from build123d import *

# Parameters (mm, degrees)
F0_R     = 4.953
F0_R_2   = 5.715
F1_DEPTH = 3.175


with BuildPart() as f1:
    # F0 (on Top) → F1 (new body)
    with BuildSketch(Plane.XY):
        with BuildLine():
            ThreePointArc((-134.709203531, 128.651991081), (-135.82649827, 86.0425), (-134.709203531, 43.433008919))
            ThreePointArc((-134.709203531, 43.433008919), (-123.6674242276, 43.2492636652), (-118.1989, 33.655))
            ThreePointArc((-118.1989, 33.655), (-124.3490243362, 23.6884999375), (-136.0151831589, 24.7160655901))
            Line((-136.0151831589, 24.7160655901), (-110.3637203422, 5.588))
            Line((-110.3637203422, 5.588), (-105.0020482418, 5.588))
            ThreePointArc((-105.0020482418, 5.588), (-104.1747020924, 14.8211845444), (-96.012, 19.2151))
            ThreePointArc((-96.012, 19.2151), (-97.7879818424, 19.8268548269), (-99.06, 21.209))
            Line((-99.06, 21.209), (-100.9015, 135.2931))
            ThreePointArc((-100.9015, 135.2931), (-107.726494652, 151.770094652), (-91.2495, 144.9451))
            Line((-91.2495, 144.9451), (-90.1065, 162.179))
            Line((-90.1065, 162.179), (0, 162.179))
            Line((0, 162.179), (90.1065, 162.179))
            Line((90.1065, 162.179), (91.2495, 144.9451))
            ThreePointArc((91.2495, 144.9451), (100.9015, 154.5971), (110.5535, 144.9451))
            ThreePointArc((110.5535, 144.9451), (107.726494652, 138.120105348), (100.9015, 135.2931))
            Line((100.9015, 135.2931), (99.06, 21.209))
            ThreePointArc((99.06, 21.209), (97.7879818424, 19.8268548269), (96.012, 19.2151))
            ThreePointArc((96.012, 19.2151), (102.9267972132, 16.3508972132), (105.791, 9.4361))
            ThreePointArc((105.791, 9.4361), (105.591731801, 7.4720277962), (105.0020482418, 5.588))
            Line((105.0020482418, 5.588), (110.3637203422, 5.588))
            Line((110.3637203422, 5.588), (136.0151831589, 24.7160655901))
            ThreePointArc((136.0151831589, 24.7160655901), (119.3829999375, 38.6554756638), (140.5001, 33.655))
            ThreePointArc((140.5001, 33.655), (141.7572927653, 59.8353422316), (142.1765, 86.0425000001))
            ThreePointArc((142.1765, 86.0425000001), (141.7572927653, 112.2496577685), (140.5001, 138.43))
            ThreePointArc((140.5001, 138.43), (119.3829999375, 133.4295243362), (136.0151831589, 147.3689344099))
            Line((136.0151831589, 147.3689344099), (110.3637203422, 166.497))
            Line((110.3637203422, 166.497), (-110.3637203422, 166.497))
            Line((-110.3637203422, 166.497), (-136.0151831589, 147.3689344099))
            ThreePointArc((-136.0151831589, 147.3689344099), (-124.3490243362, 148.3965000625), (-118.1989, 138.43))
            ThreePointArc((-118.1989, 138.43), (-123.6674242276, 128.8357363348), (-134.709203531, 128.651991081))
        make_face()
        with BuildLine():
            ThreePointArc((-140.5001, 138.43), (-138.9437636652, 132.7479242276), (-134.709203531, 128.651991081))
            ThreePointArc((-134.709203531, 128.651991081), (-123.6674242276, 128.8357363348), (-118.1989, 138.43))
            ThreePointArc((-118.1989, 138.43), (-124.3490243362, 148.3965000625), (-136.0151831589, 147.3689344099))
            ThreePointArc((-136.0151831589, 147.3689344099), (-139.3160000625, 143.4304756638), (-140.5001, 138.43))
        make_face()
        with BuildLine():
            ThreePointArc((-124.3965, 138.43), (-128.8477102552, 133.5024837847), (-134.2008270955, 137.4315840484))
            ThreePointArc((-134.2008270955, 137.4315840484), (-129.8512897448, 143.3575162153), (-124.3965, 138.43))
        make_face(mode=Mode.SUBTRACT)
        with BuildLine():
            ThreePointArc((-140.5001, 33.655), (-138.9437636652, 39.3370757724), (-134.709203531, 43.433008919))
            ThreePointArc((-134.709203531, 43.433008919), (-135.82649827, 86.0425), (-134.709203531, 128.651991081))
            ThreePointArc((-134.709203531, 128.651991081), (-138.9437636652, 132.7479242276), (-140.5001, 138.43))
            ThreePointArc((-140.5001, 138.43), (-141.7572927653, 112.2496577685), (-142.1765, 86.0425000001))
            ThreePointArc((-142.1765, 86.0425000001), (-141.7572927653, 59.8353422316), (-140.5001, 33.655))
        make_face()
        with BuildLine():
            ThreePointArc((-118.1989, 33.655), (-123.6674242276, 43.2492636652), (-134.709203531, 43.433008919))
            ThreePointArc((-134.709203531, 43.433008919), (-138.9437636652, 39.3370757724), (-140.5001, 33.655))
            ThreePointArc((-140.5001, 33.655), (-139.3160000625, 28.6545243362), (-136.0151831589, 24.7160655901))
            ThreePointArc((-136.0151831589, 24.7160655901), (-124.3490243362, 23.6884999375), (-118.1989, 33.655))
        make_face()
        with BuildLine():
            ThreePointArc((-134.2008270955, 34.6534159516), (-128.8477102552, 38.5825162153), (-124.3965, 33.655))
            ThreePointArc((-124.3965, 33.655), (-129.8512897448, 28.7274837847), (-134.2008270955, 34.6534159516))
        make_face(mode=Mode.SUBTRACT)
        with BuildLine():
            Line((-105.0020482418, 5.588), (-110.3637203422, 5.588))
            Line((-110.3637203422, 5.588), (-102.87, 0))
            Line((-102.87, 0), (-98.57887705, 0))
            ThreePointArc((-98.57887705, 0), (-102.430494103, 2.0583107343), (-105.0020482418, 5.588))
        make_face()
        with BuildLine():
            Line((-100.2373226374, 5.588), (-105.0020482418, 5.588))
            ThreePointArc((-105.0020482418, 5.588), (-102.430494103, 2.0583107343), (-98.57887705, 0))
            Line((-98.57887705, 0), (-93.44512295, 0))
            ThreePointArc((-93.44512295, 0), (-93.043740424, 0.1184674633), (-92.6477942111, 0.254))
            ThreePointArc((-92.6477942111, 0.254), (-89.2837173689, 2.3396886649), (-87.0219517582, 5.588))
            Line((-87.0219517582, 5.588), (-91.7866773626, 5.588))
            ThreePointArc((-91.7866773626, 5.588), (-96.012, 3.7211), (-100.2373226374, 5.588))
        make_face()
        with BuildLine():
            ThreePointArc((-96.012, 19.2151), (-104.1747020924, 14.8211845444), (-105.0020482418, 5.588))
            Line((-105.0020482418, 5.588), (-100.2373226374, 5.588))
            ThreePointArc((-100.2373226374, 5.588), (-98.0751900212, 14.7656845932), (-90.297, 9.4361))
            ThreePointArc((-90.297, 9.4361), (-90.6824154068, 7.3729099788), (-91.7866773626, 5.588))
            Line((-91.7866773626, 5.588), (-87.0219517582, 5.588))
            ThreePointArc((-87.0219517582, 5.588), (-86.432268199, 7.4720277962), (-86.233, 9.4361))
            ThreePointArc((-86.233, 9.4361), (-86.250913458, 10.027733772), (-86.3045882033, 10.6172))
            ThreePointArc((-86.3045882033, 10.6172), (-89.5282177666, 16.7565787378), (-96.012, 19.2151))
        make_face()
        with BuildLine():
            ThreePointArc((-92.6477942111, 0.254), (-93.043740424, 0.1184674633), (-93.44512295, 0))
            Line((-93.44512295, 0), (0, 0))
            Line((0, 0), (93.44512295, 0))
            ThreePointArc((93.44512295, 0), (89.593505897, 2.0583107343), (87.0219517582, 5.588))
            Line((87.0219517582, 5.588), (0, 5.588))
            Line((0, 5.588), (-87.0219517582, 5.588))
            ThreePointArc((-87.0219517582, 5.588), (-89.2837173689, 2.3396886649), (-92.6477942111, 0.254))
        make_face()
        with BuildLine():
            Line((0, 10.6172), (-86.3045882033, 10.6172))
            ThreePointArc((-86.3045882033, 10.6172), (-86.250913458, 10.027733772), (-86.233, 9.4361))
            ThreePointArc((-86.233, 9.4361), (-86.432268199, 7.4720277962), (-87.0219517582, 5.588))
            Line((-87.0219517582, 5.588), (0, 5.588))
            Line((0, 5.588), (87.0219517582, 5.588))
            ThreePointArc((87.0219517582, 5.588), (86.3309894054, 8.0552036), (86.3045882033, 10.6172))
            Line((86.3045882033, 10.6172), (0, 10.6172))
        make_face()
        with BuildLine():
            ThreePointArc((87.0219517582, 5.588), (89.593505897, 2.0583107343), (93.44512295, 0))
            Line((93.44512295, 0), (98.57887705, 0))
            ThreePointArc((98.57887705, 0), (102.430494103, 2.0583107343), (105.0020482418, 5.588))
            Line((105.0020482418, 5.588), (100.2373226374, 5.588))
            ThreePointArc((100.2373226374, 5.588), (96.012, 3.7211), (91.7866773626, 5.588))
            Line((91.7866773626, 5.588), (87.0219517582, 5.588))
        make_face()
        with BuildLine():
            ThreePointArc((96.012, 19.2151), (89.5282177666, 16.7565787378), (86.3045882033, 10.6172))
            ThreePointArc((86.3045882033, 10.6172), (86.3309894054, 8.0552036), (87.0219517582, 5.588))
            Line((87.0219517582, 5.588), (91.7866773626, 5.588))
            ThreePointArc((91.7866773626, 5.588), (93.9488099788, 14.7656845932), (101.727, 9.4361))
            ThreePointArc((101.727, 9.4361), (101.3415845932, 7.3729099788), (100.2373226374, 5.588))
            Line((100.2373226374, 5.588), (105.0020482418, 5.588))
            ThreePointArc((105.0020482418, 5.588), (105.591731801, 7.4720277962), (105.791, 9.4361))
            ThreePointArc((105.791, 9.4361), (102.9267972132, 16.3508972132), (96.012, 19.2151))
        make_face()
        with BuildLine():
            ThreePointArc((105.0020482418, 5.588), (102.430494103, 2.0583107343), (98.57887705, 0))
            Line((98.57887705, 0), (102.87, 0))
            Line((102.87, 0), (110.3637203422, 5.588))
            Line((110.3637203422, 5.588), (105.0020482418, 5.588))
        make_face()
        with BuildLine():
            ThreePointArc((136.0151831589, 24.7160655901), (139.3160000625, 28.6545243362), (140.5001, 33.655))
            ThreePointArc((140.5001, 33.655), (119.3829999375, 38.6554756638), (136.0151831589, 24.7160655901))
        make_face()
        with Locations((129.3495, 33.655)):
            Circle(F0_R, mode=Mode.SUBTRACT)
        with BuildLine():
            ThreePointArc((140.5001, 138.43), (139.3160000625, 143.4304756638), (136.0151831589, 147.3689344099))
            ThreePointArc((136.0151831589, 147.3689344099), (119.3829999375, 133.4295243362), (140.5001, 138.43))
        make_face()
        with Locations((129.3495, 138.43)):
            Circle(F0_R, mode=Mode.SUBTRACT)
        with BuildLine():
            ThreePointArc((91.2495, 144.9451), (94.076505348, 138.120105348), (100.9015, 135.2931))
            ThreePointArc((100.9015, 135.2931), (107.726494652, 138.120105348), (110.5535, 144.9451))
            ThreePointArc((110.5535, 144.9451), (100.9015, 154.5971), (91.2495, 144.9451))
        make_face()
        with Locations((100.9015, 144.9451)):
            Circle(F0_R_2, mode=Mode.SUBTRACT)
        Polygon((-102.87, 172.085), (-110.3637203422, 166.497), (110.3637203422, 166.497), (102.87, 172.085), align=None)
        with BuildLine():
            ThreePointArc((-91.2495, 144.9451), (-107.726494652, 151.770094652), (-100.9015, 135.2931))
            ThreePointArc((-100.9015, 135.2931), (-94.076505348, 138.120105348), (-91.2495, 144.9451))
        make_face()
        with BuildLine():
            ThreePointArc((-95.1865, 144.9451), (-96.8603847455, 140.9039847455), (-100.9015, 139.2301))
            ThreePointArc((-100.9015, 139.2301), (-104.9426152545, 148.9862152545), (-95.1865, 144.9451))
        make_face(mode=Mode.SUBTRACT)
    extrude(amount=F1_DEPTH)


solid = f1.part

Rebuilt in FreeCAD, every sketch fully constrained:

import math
import FreeCAD as App
import Part
import Sketcher
from FreeCAD import Vector
Q = App.Units.Quantity

doc = App.newDocument("Part")
params = doc.addObject("Spreadsheet::Sheet", "Params")
for row, (alias, value) in enumerate([
    ("sketch1_diameter", "0.39 in"),
    ("sketch1_diameter2", "0.45 in"),
    ("sketch1_radius", "0.38 in"),
    ("sketch1_width", "8.1 in"),
    ("sketch1_radius2", "0.439 in"),
    ("pad1_length", "0.125 in"),
], start=1):
    params.set(f"A{row}", alias)
    params.set(f"B{row}", "=" + value)
    params.setAlias(f"B{row}", alias)

body = doc.addObject("PartDesign::Body", "Body")

# Sketch on XY plane
sketch1 = body.newObject("Sketcher::SketchObject", "Sketch")
sketch1.AttachmentSupport = (doc.getObject("XY_Plane"), [""])
sketch1.MapMode = "FlatFace"
sketch1.addGeometry(Part.ArcOfCircle(Part.Circle(Vector(-677.216387, 86.0425, 0), Vector(0, 0, 1), 819.392888), math.radians(-3.665679), math.radians(3.665679)), False)
sketch1.addGeometry(Part.ArcOfCircle(Part.Circle(Vector(129.3495, 138.43, 0), Vector(0, 0, 1), 11.1506), math.radians(0), math.radians(53.288437)), False)
sketch1.addGeometry(Part.LineSegment(Vector(136.015183, 147.368934, 0), Vector(102.87, 172.085, 0)), False)
sketch1.addGeometry(Part.LineSegment(Vector(102.87, 172.085, 0), Vector(-102.87, 172.085, 0)), False)
sketch1.addGeometry(Part.LineSegment(Vector(-102.87, 172.085, 0), Vector(-136.015183, 147.368934, 0)), False)
sketch1.addGeometry(Part.ArcOfCircle(Part.Circle(Vector(-129.3495, 138.43, 0), Vector(0, 0, 1), 11.1506), math.radians(126.711563), math.radians(180)), False)
sketch1.addGeometry(Part.ArcOfCircle(Part.Circle(Vector(677.216387, 86.0425, 0), Vector(0, 0, 1), 819.392887), math.radians(176.334321), math.radians(183.665679)), False)
sketch1.addGeometry(Part.ArcOfCircle(Part.Circle(Vector(-129.3495, 33.655, 0), Vector(0, 0, 1), 11.1506), math.radians(180), math.radians(233.288437)), False)
sketch1.addGeometry(Part.LineSegment(Vector(-136.015183, 24.716066, 0), Vector(-102.87, 0, 0)), False)
sketch1.addGeometry(Part.LineSegment(Vector(-102.87, 0, 0), Vector(102.87, 0, 0)), False)
sketch1.addGeometry(Part.LineSegment(Vector(102.87, 0, 0), Vector(136.015183, 24.716066, 0)), False)
sketch1.addGeometry(Part.ArcOfCircle(Part.Circle(Vector(129.3495, 33.655, 0), Vector(0, 0, 1), 11.1506), math.radians(-53.288437), math.radians(0)), False)
sketch1.addGeometry(Part.ArcOfCircle(Part.Circle(Vector(-96.012, 9.4361, 0), Vector(0, 0, 1), 5.715), math.radians(-137.675143), math.radians(-42.324857)), False)
sketch1.addGeometry(Part.ArcOfCircle(Part.Circle(Vector(-96.012, 9.4361, 0), Vector(0, 0, 1), 5.715), math.radians(0), math.radians(222.324857)), False)
sketch1.addGeometry(Part.ArcOfCircle(Part.Circle(Vector(-96.012, 9.4361, 0), Vector(0, 0, 1), 5.715), math.radians(-42.324857), math.radians(0)), False)
sketch1.addGeometry(Part.ArcOfCircle(Part.Circle(Vector(-129.3495, 33.655, 0), Vector(0, 0, 1), 4.953), math.radians(168.370747), math.radians(360)), False)
sketch1.addGeometry(Part.ArcOfCircle(Part.Circle(Vector(-129.3495, 33.655, 0), Vector(0, 0, 1), 4.953), math.radians(0), math.radians(168.370747)), False)
sketch1.addGeometry(Part.ArcOfCircle(Part.Circle(Vector(96.012, 9.4361, 0), Vector(0, 0, 1), 5.715), math.radians(-137.675143), math.radians(-42.324857)), False)
sketch1.addGeometry(Part.ArcOfCircle(Part.Circle(Vector(96.012, 9.4361, 0), Vector(0, 0, 1), 5.715), math.radians(0), math.radians(222.324857)), False)
sketch1.addGeometry(Part.ArcOfCircle(Part.Circle(Vector(96.012, 9.4361, 0), Vector(0, 0, 1), 5.715), math.radians(-42.324857), math.radians(0)), False)
sketch1.addGeometry(Part.Circle(Vector(129.3495, 33.655, 0), Vector(0, 0, 1), 4.953), False)
sketch1.addGeometry(Part.ArcOfCircle(Part.Circle(Vector(95.689807, 23.034257, 0), Vector(0, 0, 1), 3.832723), math.radians(-85.177805), math.radians(-28.439447)), False)
sketch1.addGeometry(Part.ArcOfCircle(Part.Circle(Vector(96.012, 9.4361, 0), Vector(0, 0, 1), 9.779), math.radians(90), math.radians(173.062924)), False)
sketch1.addGeometry(Part.LineSegment(Vector(86.304588, 10.6172, 0), Vector(-86.304588, 10.6172, 0)), False)
sketch1.addGeometry(Part.ArcOfCircle(Part.Circle(Vector(-96.012, 9.4361, 0), Vector(0, 0, 1), 9.779), math.radians(6.937076), math.radians(90)), False)
sketch1.addGeometry(Part.ArcOfCircle(Part.Circle(Vector(-95.689807, 23.034257, 0), Vector(0, 0, 1), 3.832723), math.radians(-151.560553), math.radians(-94.822195)), False)
sketch1.addGeometry(Part.LineSegment(Vector(-99.06, 21.209, 0), Vector(-100.9015, 135.2931, 0)), False)
sketch1.addGeometry(Part.ArcOfCircle(Part.Circle(Vector(-100.9015, 144.9451, 0), Vector(0, 0, 1), 9.652), math.radians(-90), math.radians(0)), False)
sketch1.addGeometry(Part.LineSegment(Vector(-91.2495, 144.9451, 0), Vector(-90.1065, 162.179, 0)), False)
sketch1.addGeometry(Part.LineSegment(Vector(-90.1065, 162.179, 0), Vector(90.1065, 162.179, 0)), False)
sketch1.addGeometry(Part.LineSegment(Vector(90.1065, 162.179, 0), Vector(91.2495, 144.9451, 0)), False)
sketch1.addGeometry(Part.ArcOfCircle(Part.Circle(Vector(100.9015, 144.9451, 0), Vector(0, 0, 1), 9.652), math.radians(180), math.radians(270)), False)
sketch1.addGeometry(Part.LineSegment(Vector(100.9015, 135.2931, 0), Vector(99.06, 21.209, 0)), False)
sketch1.addGeometry(Part.ArcOfCircle(Part.Circle(Vector(-129.3495, 138.43, 0), Vector(0, 0, 1), 4.953), math.radians(0), math.radians(191.629253)), False)
sketch1.addGeometry(Part.ArcOfCircle(Part.Circle(Vector(-129.3495, 138.43, 0), Vector(0, 0, 1), 4.953), math.radians(-168.370747), math.radians(0)), False)
sketch1.addGeometry(Part.ArcOfCircle(Part.Circle(Vector(-100.9015, 144.9451, 0), Vector(0, 0, 1), 5.715), math.radians(0), math.radians(270)), False)
sketch1.addGeometry(Part.ArcOfCircle(Part.Circle(Vector(-100.9015, 144.9451, 0), Vector(0, 0, 1), 5.715), math.radians(-90), math.radians(0)), False)
sketch1.addGeometry(Part.Circle(Vector(129.3495, 138.43, 0), Vector(0, 0, 1), 4.953), False)
sketch1.addGeometry(Part.Circle(Vector(100.9015, 144.9451, 0), Vector(0, 0, 1), 5.715), False)
sketch1.addConstraint(Sketcher.Constraint("Coincident", 0, 2, 1, 1))
sketch1.addConstraint(Sketcher.Constraint("Tangent", 1, 2, 2, 1))
sketch1.addConstraint(Sketcher.Constraint("Coincident", 2, 2, 3, 1))
sketch1.addConstraint(Sketcher.Constraint("Coincident", 3, 2, 4, 1))
sketch1.addConstraint(Sketcher.Constraint("Tangent", 4, 2, 5, 1))
sketch1.addConstraint(Sketcher.Constraint("Coincident", 5, 2, 6, 1))
sketch1.addConstraint(Sketcher.Constraint("Coincident", 6, 2, 7, 1))
sketch1.addConstraint(Sketcher.Constraint("Tangent", 7, 2, 8, 1))
sketch1.addConstraint(Sketcher.Constraint("Coincident", 8, 2, 9, 1))
sketch1.addConstraint(Sketcher.Constraint("Coincident", 9, 2, 10, 1))
sketch1.addConstraint(Sketcher.Constraint("Tangent", 10, 2, 11, 1))
sketch1.addConstraint(Sketcher.Constraint("Coincident", 11, 2, 0, 1))
sketch1.addConstraint(Sketcher.Constraint("Tangent", 12, 1, 13, 2))
sketch1.addConstraint(Sketcher.Constraint("Tangent", 13, 1, 14, 2))
sketch1.addConstraint(Sketcher.Constraint("Tangent", 14, 1, 12, 2))
sketch1.addConstraint(Sketcher.Constraint("Tangent", 15, 1, 16, 2))
sketch1.addConstraint(Sketcher.Constraint("Coincident", 16, 1, 15, 2))
sketch1.addConstraint(Sketcher.Constraint("Tangent", 17, 1, 18, 2))
sketch1.addConstraint(Sketcher.Constraint("Tangent", 18, 1, 19, 2))
sketch1.addConstraint(Sketcher.Constraint("Tangent", 19, 1, 17, 2))
sketch1.addConstraint(Sketcher.Constraint("Coincident", 21, 1, 22, 1))
sketch1.addConstraint(Sketcher.Constraint("Coincident", 22, 2, 23, 1))
sketch1.addConstraint(Sketcher.Constraint("Coincident", 23, 2, 24, 1))
sketch1.addConstraint(Sketcher.Constraint("Coincident", 24, 2, 25, 2))
sketch1.addConstraint(Sketcher.Constraint("Coincident", 25, 1, 26, 1))
sketch1.addConstraint(Sketcher.Constraint("Coincident", 26, 2, 27, 1))
sketch1.addConstraint(Sketcher.Constraint("Coincident", 27, 2, 28, 1))
sketch1.addConstraint(Sketcher.Constraint("Coincident", 28, 2, 29, 1))
sketch1.addConstraint(Sketcher.Constraint("Coincident", 29, 2, 30, 1))
sketch1.addConstraint(Sketcher.Constraint("Coincident", 30, 2, 31, 1))
sketch1.addConstraint(Sketcher.Constraint("Coincident", 31, 2, 32, 1))
sketch1.addConstraint(Sketcher.Constraint("Coincident", 32, 2, 21, 2))
sketch1.addConstraint(Sketcher.Constraint("Tangent", 33, 1, 34, 2))
sketch1.addConstraint(Sketcher.Constraint("Coincident", 34, 1, 33, 2))
sketch1.addConstraint(Sketcher.Constraint("Tangent", 35, 1, 36, 2))
sketch1.addConstraint(Sketcher.Constraint("Coincident", 36, 1, 35, 2))
sketch1.addConstraint(Sketcher.Constraint("Horizontal", 3))
sketch1.addConstraint(Sketcher.Constraint("Horizontal", 9))
sketch1.addConstraint(Sketcher.Constraint("Horizontal", 23))
sketch1.addConstraint(Sketcher.Constraint("Horizontal", 29))
sketch1.addConstraint(Sketcher.Constraint("Coincident", 15, 3, 7, 3))
sketch1.addConstraint(Sketcher.Constraint("Coincident", 20, 3, 11, 3))
sketch1.addConstraint(Sketcher.Constraint("Coincident", 22, 3, 17, 3))
sketch1.addConstraint(Sketcher.Constraint("Coincident", 24, 3, 12, 3))
sketch1.addConstraint(Sketcher.Constraint("Coincident", 33, 3, 5, 3))
sketch1.addConstraint(Sketcher.Constraint("Coincident", 35, 3, 27, 3))
sketch1.addConstraint(Sketcher.Constraint("Coincident", 37, 3, 1, 3))
sketch1.addConstraint(Sketcher.Constraint("Coincident", 38, 3, 31, 3))
sketch1.addConstraint(Sketcher.Constraint("Equal", 1, 5))
sketch1.addConstraint(Sketcher.Constraint("Equal", 0, 6))
sketch1.addConstraint(Sketcher.Constraint("Equal", 5, 7))
sketch1.addConstraint(Sketcher.Constraint("Equal", 7, 11))
sketch1.addConstraint(Sketcher.Constraint("Equal", 14, 17))
sketch1.addConstraint(Sketcher.Constraint("Equal", 16, 20))
sketch1.addConstraint(Sketcher.Constraint("Equal", 22, 24))
sketch1.addConstraint(Sketcher.Constraint("Equal", 21, 25))
sketch1.addConstraint(Sketcher.Constraint("Equal", 27, 31))
sketch1.addConstraint(Sketcher.Constraint("Equal", 20, 33))
sketch1.addConstraint(Sketcher.Constraint("Equal", 19, 35))
sketch1.addConstraint(Sketcher.Constraint("Equal", 34, 37))
sketch1.addConstraint(Sketcher.Constraint("Equal", 36, 38))
sketch1.addConstraint(Sketcher.Constraint("Symmetric", 8, 2, 9, 2, -1, 1))
sketch1.addConstraint(Sketcher.Constraint("Symmetric", 1, 3, 5, 3, -2))
sketch1.addConstraint(Sketcher.Constraint("Symmetric", 0, 3, 6, 3, -2))
sketch1.addConstraint(Sketcher.Constraint("Symmetric", 7, 3, 11, 3, -2))
sketch1.addConstraint(Sketcher.Constraint("Symmetric", 12, 3, 17, 3, -2))
sketch1.addConstraint(Sketcher.Constraint("Symmetric", 21, 3, 25, 3, -2))
sketch1.addConstraint(Sketcher.Constraint("Symmetric", 27, 3, 31, 3, -2))
sketch1.addConstraint(Sketcher.Constraint("Parallel", 2, 8))
sketch1.addConstraint(Sketcher.Constraint("Parallel", 4, 10))
sketch1.addConstraint(Sketcher.Constraint("Horizontal", 37, 3, 0, 2))
sketch1.addConstraint(Sketcher.Constraint("Horizontal", 20, 3, 6, 2))
sketch1.addConstraint(Sketcher.Constraint("Horizontal", 24, 3, 13, 1))
sketch1.addConstraint(Sketcher.Constraint("Horizontal", 12, 1, 14, 1))
sketch1.addConstraint(Sketcher.Constraint("Horizontal", 11, 2, 16, 1))
sketch1.addConstraint(Sketcher.Constraint("Horizontal", 14, 1, 17, 1))
sketch1.addConstraint(Sketcher.Constraint("Horizontal", 13, 1, 18, 1))
sketch1.addConstraint(Sketcher.Constraint("Horizontal", 17, 1, 19, 1))
sketch1.addConstraint(Sketcher.Constraint("Horizontal", 38, 3, 27, 2))
sketch1.addConstraint(Sketcher.Constraint("Horizontal", 27, 2, 30, 2))
sketch1.addConstraint(Sketcher.Constraint("Horizontal", 25, 1, 32, 2))
sketch1.addConstraint(Sketcher.Constraint("Horizontal", 5, 2, 33, 1))
sketch1.addConstraint(Sketcher.Constraint("Horizontal", 30, 2, 35, 1))
sketch1.addConstraint(Sketcher.Constraint("Vertical", 5, 3, 7, 3))
sketch1.addConstraint(Sketcher.Constraint("Vertical", 3, 2, 8, 2))
sketch1.addConstraint(Sketcher.Constraint("Vertical", 22, 3, 21, 1))
sketch1.addConstraint(Sketcher.Constraint("Vertical", 36, 3, 26, 2))
sketch1.addConstraint(Sketcher.Constraint("Vertical", 38, 3, 31, 2))
sketch1.addConstraint(Sketcher.Constraint("Vertical", 15, 1, 34, 1))
sketch1.addConstraint(Sketcher.Constraint("Vertical", 26, 2, 36, 1))
sketch1.addConstraint(Sketcher.Constraint("Equal", 28, 30))
sketch1.addConstraint(Sketcher.Constraint("Diameter", 20, Q("0.39 in")))
sketch1.addConstraint(Sketcher.Constraint("Diameter", 38, Q("0.45 in")))
sketch1.addConstraint(Sketcher.Constraint("Radius", 27, Q("0.38 in")))
sketch1.addConstraint(Sketcher.Constraint("DistanceX", 3, 2, 3, 1, Q("8.1 in")))
sketch1.addConstraint(Sketcher.Constraint("Radius", 1, Q("0.439 in")))
sketch1.addConstraint(Sketcher.Constraint("Radius", 22, Q("0.385 in")))
sketch1.addConstraint(Sketcher.Constraint("DistanceX", 25, 1, -1, 1, Q("3.9 in")))
sketch1.addConstraint(Sketcher.Constraint("DistanceX", 29, 1, 29, 2, Q("7.095 in")))
sketch1.addConstraint(Sketcher.Constraint("DistanceY", -1, 1, 1, 3, Q("5.45 in")))
sketch1.addConstraint(Sketcher.Constraint("DistanceX", 12, 3, -1, 1, Q("3.78 in")))
sketch1.addConstraint(Sketcher.Constraint("DistanceY", -1, 1, 12, 1, Q("0.22 in")))
sketch1.addConstraint(Sketcher.Constraint("DistanceY", -1, 1, 7, 3, Q("1.325 in")))
sketch1.addConstraint(Sketcher.Constraint("DistanceY", -1, 1, 22, 2, Q("0.418 in")))
sketch1.addConstraint(Sketcher.Constraint("DistanceY", -1, 1, 25, 1, Q("0.835 in")))
sketch1.addConstraint(Sketcher.Constraint("DistanceY", -1, 1, 28, 2, Q("6.385 in")))
sketch1.addConstraint(Sketcher.Constraint("DistanceX", -1, 1, 1, 3, Q("5.0925 in")))
sketch1.addConstraint(Sketcher.Constraint("DistanceY", -1, 1, 12, 3, Q("0.3715 in")))
sketch1.addConstraint(Sketcher.Constraint("DistanceX", 27, 3, -1, 1, Q("3.9725 in")))
sketch1.addConstraint(Sketcher.Constraint("DistanceY", -1, 1, 27, 3, Q("5.7065 in")))
sketch1.addConstraint(Sketcher.Constraint("Radius", 0, Q("819.392888 mm")))
sketch1.addConstraint(Sketcher.Constraint("Radius", 21, Q("3.832723 mm")))
sketch1.addConstraint(Sketcher.Constraint("DistanceX", 15, 1, -1, 1, Q("134.200827 mm")))
sketch1.setExpression("Constraints[91]", "Params.sketch1_diameter")
sketch1.setExpression("Constraints[92]", "Params.sketch1_diameter2")
sketch1.setExpression("Constraints[93]", "Params.sketch1_radius")
sketch1.setExpression("Constraints[94]", "Params.sketch1_width")
sketch1.setExpression("Constraints[95]", "Params.sketch1_radius2")
pad1 = body.newObject("PartDesign::Pad", "Pad")
pad1.Profile = sketch1
pad1.setExpression("Length", "Params.pad1_length")

doc.recompute()
